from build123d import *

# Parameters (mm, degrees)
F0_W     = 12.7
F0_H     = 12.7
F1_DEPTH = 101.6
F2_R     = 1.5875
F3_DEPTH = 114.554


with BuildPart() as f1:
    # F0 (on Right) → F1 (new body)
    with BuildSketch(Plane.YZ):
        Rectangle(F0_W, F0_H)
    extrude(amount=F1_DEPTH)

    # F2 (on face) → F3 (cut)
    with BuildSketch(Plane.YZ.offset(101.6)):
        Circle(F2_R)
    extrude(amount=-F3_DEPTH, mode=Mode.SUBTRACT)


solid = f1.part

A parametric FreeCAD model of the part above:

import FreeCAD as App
import Part
import Sketcher
from FreeCAD import Vector
Q = App.Units.Quantity


def add_polygon(sketch, points):
    """Adds a closed chain of lines whose ends are joined by coincident constraints."""
    first, n = sketch.GeometryCount, len(points)
    for a, b in zip(points, points[1:] + points[:1]):
        sketch.addGeometry(Part.LineSegment(App.Vector(*a, 0), App.Vector(*b, 0)), False)
    for i in range(n):
        sketch.addConstraint(Sketcher.Constraint("Coincident", first + i, 2, first + (i + 1) % n, 1))

doc = App.newDocument("Part")
body = doc.addObject("PartDesign::Body", "Body")

# Sketch on YZ plane
sketch1 = body.newObject("Sketcher::SketchObject", "Sketch")
sketch1.AttachmentSupport = (doc.getObject("YZ_Plane"), [""])
sketch1.MapMode = "FlatFace"
add_polygon(sketch1, [(-6.35, 6.35), (-6.35, -6.35), (6.35, -6.35), (6.35, 6.35)])  # lines 0-3
sketch1.addConstraint(Sketcher.Constraint("Vertical", 0))
sketch1.addConstraint(Sketcher.Constraint("Horizontal", 1))
sketch1.addConstraint(Sketcher.Constraint("Vertical", 2))
sketch1.addConstraint(Sketcher.Constraint("Horizontal", 3))
sketch1.addConstraint(Sketcher.Constraint("Symmetric", 0, 2, 2, 2, -1, 1))
sketch1.addConstraint(Sketcher.Constraint("Equal", 3, 0))
sketch1.addConstraint(Sketcher.Constraint("DistanceX", 1, 1, 1, 2, Q("0.5 in")))
pad1 = body.newObject("PartDesign::Pad", "Pad")
pad1.Profile = sketch1
pad1.Length = Q("4 in")

# Sketch on YZ plane
sketch2 = body.newObject("Sketcher::SketchObject", "Sketch001")
sketch2.AttachmentSupport = (doc.getObject("YZ_Plane"), [""])
sketch2.MapMode = "FlatFace"
sketch2.AttachmentOffset = App.Placement(Vector(0, 0, 4 * 25.4), App.Rotation())
sketch2.addGeometry(Part.Circle(Vector(0, 0, 0), Vector(0, 0, 1), 1.5875), False)
sketch2.addConstraint(Sketcher.Constraint("Coincident", 0, 3, -1, 1))
sketch2.addConstraint(Sketcher.Constraint("Diameter", 0, Q("0.125 in")))
pocket1 = body.newObject("PartDesign::Pocket", "Pocket")
pocket1.Profile = sketch2
pocket1.Length = Q("4.51 in")

doc.recompute()
